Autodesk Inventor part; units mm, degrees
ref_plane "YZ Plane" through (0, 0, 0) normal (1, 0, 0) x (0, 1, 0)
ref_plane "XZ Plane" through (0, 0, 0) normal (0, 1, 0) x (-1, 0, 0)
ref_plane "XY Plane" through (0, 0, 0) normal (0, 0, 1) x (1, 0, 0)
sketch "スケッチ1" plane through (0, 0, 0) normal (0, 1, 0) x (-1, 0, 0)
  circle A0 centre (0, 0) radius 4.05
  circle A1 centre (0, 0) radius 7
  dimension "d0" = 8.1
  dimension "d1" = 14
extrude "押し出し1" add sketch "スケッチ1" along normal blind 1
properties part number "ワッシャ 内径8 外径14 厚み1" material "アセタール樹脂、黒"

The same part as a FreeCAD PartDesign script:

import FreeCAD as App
import Part
import Sketcher
Q = App.Units.Quantity

doc = App.newDocument("Part")
body = doc.addObject("PartDesign::Body", "Body")

# Sketch on XZ plane
sketch1 = body.newObject("Sketcher::SketchObject", "Sketch")
sketch1.AttachmentSupport = (doc.getObject("XZ_Plane"), [""])
sketch1.MapMode = "FlatFace"
sketch1.addGeometry([
    Part.Circle(App.Vector(0, 0, 0), App.Vector(0, 0, 1), 7),
    Part.Circle(App.Vector(0, 0, 0), App.Vector(0, 0, 1), 4),
], False)
sketch1.addConstraint([
    Sketcher.Constraint("Coincident", 0, 3, -1, 1),
    Sketcher.Constraint("Coincident", 1, 3, -1, 1),
    Sketcher.Constraint("Diameter", 0, Q("14 mm")),
    Sketcher.Constraint("Diameter", 1, Q("8.1 mm")),
])
pad1 = body.newObject("PartDesign::Pad", "Pad")
pad1.Profile = sketch1
pad1.Length = 1
pad1.Reversed = True

doc.recompute()
